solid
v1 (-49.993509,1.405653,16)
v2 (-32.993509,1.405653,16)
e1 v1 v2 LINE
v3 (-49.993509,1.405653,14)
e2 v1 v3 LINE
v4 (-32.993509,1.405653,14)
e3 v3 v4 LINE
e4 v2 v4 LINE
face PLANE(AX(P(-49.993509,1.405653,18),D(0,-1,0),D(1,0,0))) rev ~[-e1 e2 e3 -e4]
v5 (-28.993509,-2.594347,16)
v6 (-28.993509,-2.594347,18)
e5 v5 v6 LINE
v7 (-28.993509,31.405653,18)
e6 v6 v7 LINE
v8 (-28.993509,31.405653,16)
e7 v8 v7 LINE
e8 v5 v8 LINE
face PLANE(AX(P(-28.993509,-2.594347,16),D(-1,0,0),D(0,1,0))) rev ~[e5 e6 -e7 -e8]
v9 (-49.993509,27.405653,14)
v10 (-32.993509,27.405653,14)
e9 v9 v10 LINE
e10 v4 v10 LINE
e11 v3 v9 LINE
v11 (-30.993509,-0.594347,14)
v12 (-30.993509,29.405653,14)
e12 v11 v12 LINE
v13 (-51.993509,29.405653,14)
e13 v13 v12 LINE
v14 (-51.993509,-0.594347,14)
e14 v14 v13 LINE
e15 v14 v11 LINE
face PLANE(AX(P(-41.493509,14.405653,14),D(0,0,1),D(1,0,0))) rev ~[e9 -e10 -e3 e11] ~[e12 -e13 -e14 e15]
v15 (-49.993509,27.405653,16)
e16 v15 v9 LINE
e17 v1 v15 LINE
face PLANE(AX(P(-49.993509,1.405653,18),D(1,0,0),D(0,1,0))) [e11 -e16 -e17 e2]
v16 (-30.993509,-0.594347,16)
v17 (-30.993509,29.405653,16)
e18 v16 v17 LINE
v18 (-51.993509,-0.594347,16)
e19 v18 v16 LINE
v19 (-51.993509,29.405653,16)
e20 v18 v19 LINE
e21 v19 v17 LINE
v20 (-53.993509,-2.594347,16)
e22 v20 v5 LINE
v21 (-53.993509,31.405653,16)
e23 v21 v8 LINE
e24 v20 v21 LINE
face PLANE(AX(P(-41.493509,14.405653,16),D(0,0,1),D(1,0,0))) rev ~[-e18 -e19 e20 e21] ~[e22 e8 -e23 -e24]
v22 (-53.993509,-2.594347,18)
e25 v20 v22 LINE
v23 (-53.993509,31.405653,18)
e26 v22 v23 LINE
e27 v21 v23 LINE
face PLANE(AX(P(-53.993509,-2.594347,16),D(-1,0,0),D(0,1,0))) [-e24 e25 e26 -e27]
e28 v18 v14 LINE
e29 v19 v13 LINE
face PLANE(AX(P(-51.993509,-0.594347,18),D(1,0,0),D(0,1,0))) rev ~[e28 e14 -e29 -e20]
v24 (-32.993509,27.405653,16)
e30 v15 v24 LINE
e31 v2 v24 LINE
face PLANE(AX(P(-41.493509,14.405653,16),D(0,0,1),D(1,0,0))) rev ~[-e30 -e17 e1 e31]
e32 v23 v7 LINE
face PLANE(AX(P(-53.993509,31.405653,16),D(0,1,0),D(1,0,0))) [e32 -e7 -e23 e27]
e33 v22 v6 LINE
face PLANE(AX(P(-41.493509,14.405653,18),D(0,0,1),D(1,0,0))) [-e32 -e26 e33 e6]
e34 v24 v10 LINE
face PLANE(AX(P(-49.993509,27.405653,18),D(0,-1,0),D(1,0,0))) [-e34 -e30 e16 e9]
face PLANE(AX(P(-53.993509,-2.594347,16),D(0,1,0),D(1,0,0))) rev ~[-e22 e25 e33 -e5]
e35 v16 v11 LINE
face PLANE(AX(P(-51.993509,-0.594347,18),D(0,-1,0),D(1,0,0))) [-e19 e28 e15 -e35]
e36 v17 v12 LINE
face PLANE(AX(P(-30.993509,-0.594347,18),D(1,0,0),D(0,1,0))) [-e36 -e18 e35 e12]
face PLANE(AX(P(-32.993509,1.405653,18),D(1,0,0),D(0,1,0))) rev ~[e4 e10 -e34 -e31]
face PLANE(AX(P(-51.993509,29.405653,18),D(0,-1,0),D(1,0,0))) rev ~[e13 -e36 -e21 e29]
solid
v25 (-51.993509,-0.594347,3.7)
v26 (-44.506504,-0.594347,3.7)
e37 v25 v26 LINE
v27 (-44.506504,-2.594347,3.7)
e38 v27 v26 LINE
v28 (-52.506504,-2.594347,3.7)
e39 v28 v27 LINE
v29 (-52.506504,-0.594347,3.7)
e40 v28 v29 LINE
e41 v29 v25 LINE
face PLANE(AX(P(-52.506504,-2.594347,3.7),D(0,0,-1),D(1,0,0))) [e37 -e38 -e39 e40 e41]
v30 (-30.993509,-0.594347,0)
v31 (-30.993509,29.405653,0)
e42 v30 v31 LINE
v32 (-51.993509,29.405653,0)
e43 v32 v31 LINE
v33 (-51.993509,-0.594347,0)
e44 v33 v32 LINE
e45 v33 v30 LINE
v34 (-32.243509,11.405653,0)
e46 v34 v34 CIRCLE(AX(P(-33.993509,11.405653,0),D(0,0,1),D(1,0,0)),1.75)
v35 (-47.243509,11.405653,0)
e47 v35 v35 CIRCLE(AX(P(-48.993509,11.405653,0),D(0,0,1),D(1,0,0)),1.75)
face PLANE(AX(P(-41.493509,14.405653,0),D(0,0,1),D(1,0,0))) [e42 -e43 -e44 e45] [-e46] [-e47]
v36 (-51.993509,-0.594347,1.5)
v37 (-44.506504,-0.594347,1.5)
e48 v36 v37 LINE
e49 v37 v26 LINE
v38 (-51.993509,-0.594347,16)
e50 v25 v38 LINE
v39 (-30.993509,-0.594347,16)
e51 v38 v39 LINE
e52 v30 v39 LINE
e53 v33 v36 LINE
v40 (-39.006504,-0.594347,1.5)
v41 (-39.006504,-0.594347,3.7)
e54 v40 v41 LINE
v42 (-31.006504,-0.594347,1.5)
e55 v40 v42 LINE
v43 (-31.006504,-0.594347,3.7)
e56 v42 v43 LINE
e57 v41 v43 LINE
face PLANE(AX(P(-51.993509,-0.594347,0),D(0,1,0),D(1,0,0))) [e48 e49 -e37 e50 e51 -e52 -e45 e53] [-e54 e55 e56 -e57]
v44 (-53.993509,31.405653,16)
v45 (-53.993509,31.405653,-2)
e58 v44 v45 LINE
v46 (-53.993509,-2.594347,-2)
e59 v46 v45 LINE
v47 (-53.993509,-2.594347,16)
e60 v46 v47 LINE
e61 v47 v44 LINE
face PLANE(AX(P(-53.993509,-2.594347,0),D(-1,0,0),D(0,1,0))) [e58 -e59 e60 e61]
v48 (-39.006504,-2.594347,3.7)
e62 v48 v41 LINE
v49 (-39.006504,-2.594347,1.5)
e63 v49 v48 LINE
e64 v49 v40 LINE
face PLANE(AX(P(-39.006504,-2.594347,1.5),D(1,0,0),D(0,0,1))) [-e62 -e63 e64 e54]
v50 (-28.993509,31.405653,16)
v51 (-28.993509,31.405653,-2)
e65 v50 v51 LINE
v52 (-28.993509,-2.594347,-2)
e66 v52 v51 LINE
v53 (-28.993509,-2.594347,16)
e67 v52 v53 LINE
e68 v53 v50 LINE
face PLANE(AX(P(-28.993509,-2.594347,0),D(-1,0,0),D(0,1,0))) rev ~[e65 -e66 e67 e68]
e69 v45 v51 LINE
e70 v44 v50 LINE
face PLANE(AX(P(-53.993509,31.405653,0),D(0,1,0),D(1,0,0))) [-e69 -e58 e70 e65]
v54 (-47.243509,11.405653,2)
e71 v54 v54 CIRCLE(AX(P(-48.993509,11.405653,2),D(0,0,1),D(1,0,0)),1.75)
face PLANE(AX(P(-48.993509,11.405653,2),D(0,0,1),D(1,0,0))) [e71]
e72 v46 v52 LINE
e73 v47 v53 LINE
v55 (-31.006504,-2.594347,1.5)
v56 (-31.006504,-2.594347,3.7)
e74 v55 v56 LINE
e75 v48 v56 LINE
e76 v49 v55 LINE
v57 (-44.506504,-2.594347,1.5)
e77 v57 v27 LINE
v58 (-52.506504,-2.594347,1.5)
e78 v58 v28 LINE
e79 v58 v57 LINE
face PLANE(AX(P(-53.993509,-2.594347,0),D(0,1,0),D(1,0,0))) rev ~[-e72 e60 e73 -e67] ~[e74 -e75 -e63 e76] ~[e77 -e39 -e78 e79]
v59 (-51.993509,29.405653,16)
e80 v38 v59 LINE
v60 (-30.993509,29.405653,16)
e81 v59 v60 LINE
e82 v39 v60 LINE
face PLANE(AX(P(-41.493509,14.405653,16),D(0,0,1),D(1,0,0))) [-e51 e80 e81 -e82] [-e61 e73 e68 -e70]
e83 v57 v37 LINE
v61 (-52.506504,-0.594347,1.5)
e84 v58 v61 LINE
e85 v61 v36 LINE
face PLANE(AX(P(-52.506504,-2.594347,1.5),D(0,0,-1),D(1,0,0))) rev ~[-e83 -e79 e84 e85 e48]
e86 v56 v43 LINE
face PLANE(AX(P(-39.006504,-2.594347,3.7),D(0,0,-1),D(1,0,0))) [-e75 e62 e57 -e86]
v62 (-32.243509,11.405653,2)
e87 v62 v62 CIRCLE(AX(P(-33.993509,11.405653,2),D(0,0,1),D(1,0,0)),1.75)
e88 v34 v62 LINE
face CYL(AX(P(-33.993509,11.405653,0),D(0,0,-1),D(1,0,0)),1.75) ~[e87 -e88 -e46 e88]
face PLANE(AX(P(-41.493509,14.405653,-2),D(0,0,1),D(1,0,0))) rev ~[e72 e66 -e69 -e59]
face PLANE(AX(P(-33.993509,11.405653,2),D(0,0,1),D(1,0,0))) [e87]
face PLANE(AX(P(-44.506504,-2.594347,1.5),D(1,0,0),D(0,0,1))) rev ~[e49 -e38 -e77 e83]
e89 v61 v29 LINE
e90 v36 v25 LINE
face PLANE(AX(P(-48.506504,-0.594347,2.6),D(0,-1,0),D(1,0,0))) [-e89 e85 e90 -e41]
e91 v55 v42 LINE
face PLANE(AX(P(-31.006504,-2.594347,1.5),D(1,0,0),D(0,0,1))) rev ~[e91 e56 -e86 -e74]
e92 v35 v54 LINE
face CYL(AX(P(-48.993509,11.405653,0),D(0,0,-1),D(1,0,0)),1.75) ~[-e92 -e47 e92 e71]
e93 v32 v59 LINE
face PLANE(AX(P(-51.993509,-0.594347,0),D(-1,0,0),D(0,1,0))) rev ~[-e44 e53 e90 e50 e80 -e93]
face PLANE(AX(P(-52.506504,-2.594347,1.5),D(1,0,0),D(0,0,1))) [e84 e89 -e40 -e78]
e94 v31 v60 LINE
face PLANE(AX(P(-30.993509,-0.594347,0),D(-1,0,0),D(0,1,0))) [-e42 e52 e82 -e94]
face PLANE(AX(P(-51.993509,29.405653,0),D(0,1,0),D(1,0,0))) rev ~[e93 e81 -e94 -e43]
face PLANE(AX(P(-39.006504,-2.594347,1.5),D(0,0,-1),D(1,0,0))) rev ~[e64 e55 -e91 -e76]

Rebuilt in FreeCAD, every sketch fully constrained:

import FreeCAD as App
import Part
import Sketcher
Q = App.Units.Quantity

doc = App.newDocument("Part")
params = doc.addObject("Spreadsheet::Sheet", "Params")
for row, (alias, value) in enumerate([
    ("sketch1_width", "25 mm"),
    ("sketch1_height", "34 mm"),
    ("pad1_length", "2 mm"),
    ("sketch2_width", "25 mm"),
    ("sketch2_width2", "21 mm"),
    ("sketch2_height", "34 mm"),
    ("sketch2_height2", "30 mm"),
    ("pad2_length", "16 mm"),
    ("sketch3_width", "8 mm"),
    ("sketch3_height", "2.2 mm"),
    ("pocket1_length", "2 mm"),
    ("sketch4_diameter", "3.5 mm"),
    ("pad3_length", "2 mm"),
    ("sketch5_width", "25 mm"),
    ("sketch5_height", "34 mm"),
    ("pad4_length", "2 mm"),
    ("sketch6_width", "21 mm"),
    ("sketch6_width2", "17 mm"),
    ("sketch6_height", "30 mm"),
    ("sketch6_height2", "26 mm"),
    ("pad5_length", "4 mm"),
], start=1):
    params.set(f"A{row}", alias)
    params.set(f"B{row}", "=" + value)
    params.setAlias(f"B{row}", alias)

body = doc.addObject("PartDesign::Body", "Body")

# Sketch on XY plane
sketch1 = doc.addObject("Sketcher::SketchObject", "Sketch")
body.addObject(sketch1)
sketch1.AttachmentSupport = (doc.XY_Plane, [""])
sketch1.MapMode = "FlatFace"
sketch1.addGeometry([
    Part.LineSegment(App.Vector(-53.993509, 31.405653, 0), App.Vector(-53.993509, -2.594347, 0)),
    Part.LineSegment(App.Vector(-53.993509, -2.594347, 0), App.Vector(-28.993509, -2.594347, 0)),
    Part.LineSegment(App.Vector(-28.993509, -2.594347, 0), App.Vector(-28.993509, 31.405653, 0)),
    Part.LineSegment(App.Vector(-28.993509, 31.405653, 0), App.Vector(-53.993509, 31.405653, 0)),
], False)
sketch1.addConstraint([
    Sketcher.Constraint("Coincident", 0, 2, 1, 1),
    Sketcher.Constraint("Coincident", 1, 2, 2, 1),
    Sketcher.Constraint("Coincident", 2, 2, 3, 1),
    Sketcher.Constraint("Coincident", 3, 2, 0, 1),
    Sketcher.Constraint("Vertical", 0),
    Sketcher.Constraint("Horizontal", 1),
    Sketcher.Constraint("Vertical", 2),
    Sketcher.Constraint("Horizontal", 3),
    Sketcher.Constraint("DistanceX", 1, 1, 1, 2, Q("25 mm")),
    Sketcher.Constraint("DistanceY", 0, 2, 0, 1, Q("34 mm")),
    Sketcher.Constraint("DistanceX", 0, 2, -1, 1, Q("53.993509 mm")),
    Sketcher.Constraint("DistanceY", 0, 2, -1, 1, Q("2.594347 mm")),
])
sketch1.setExpression("Constraints[8]", "Params.sketch1_width")
sketch1.setExpression("Constraints[9]", "Params.sketch1_height")
pad1 = doc.addObject("PartDesign::Pad", "Pad")
body.addObject(pad1)
pad1.Profile = sketch1
pad1.setExpression("Length", "Params.pad1_length")
pad1.Reversed = True

# Sketch on XY plane
sketch2 = doc.addObject("Sketcher::SketchObject", "Sketch001")
body.addObject(sketch2)
sketch2.AttachmentSupport = (doc.XY_Plane, [""])
sketch2.MapMode = "FlatFace"
sketch2.addGeometry([
    Part.LineSegment(App.Vector(-53.993509, 31.405653, 0), App.Vector(-53.993509, -2.594347, 0)),  # 0
    Part.LineSegment(App.Vector(-53.993509, -2.594347, 0), App.Vector(-28.993509, -2.594347, 0)),  # 1
    Part.LineSegment(App.Vector(-28.993509, -2.594347, 0), App.Vector(-28.993509, 31.405653, 0)),  # 2
    Part.LineSegment(App.Vector(-28.993509, 31.405653, 0), App.Vector(-53.993509, 31.405653, 0)),  # 3
    Part.LineSegment(App.Vector(-30.993509, -0.594347, 0), App.Vector(-51.993509, -0.594347, 0)),  # 4
    Part.LineSegment(App.Vector(-51.993509, -0.594347, 0), App.Vector(-51.993509, 29.405653, 0)),  # 5
    Part.LineSegment(App.Vector(-51.993509, 29.405653, 0), App.Vector(-30.993509, 29.405653, 0)),  # 6
    Part.LineSegment(App.Vector(-30.993509, 29.405653, 0), App.Vector(-30.993509, -0.594347, 0)),  # 7
], False)
sketch2.addConstraint([
    Sketcher.Constraint("Coincident", 0, 2, 1, 1),
    Sketcher.Constraint("Coincident", 1, 2, 2, 1),
    Sketcher.Constraint("Coincident", 2, 2, 3, 1),
    Sketcher.Constraint("Coincident", 3, 2, 0, 1),
    Sketcher.Constraint("Coincident", 4, 2, 5, 1),
    Sketcher.Constraint("Coincident", 5, 2, 6, 1),
    Sketcher.Constraint("Coincident", 6, 2, 7, 1),
    Sketcher.Constraint("Coincident", 7, 2, 4, 1),
    Sketcher.Constraint("Vertical", 0),
    Sketcher.Constraint("Horizontal", 1),
    Sketcher.Constraint("Vertical", 2),
    Sketcher.Constraint("Horizontal", 3),
    Sketcher.Constraint("Horizontal", 4),
    Sketcher.Constraint("Vertical", 5),
    Sketcher.Constraint("Horizontal", 6),
    Sketcher.Constraint("Vertical", 7),
    Sketcher.Constraint("DistanceX", 1, 1, 1, 2, Q("25 mm")),
    Sketcher.Constraint("DistanceX", 4, 2, 4, 1, Q("21 mm")),
    Sketcher.Constraint("DistanceY", 0, 2, 0, 1, Q("34 mm")),
    Sketcher.Constraint("DistanceY", 5, 1, 5, 2, Q("30 mm")),
    Sketcher.Constraint("DistanceX", 0, 2, 4, 2, Q("2 mm")),
    Sketcher.Constraint("DistanceY", 0, 2, 4, 2, Q("2 mm")),
    Sketcher.Constraint("DistanceX", 0, 2, -1, 1, Q("53.993509 mm")),
    Sketcher.Constraint("DistanceY", 0, 2, -1, 1, Q("2.594347 mm")),
])
sketch2.setExpression("Constraints[16]", "Params.sketch2_width")
sketch2.setExpression("Constraints[17]", "Params.sketch2_width2")
sketch2.setExpression("Constraints[18]", "Params.sketch2_height")
sketch2.setExpression("Constraints[19]", "Params.sketch2_height2")
pad2 = doc.addObject("PartDesign::Pad", "Pad001")
body.addObject(pad2)
pad2.Profile = sketch2
pad2.setExpression("Length", "Params.pad2_length")

# Sketch on XZ plane
sketch3 = doc.addObject("Sketcher::SketchObject", "Sketch002")
body.addObject(sketch3)
sketch3.AttachmentSupport = (doc.XZ_Plane, [""])
sketch3.MapMode = "FlatFace"
sketch3.AttachmentOffset = App.Placement(App.Vector(0, 0, 2.594347), App.Rotation())
sketch3.addGeometry([
    Part.LineSegment(App.Vector(-52.506504, 3.7, 0), App.Vector(-52.506504, 1.5, 0)),  # 0
    Part.LineSegment(App.Vector(-52.506504, 1.5, 0), App.Vector(-44.506504, 1.5, 0)),  # 1
    Part.LineSegment(App.Vector(-44.506504, 1.5, 0), App.Vector(-44.506504, 3.7, 0)),  # 2
    Part.LineSegment(App.Vector(-44.506504, 3.7, 0), App.Vector(-52.506504, 3.7, 0)),  # 3
    Part.LineSegment(App.Vector(-39.006504, 3.7, 0), App.Vector(-39.006504, 1.5, 0)),  # 4
    Part.LineSegment(App.Vector(-39.006504, 1.5, 0), App.Vector(-31.006504, 1.5, 0)),  # 5
    Part.LineSegment(App.Vector(-31.006504, 1.5, 0), App.Vector(-31.006504, 3.7, 0)),  # 6
    Part.LineSegment(App.Vector(-31.006504, 3.7, 0), App.Vector(-39.006504, 3.7, 0)),  # 7
], False)
sketch3.addConstraint([
    Sketcher.Constraint("Coincident", 0, 2, 1, 1),
    Sketcher.Constraint("Coincident", 1, 2, 2, 1),
    Sketcher.Constraint("Coincident", 2, 2, 3, 1),
    Sketcher.Constraint("Coincident", 3, 2, 0, 1),
    Sketcher.Constraint("Coincident", 4, 2, 5, 1),
    Sketcher.Constraint("Coincident", 5, 2, 6, 1),
    Sketcher.Constraint("Coincident", 6, 2, 7, 1),
    Sketcher.Constraint("Coincident", 7, 2, 4, 1),
    Sketcher.Constraint("Vertical", 0),
    Sketcher.Constraint("Horizontal", 1),
    Sketcher.Constraint("Vertical", 2),
    Sketcher.Constraint("Horizontal", 3),
    Sketcher.Constraint("Vertical", 4),
    Sketcher.Constraint("Horizontal", 5),
    Sketcher.Constraint("Vertical", 6),
    Sketcher.Constraint("Horizontal", 7),
    Sketcher.Constraint("Horizontal", 1, 2, 4, 2),
    Sketcher.Constraint("Horizontal", 3, 2, 6, 2),
    Sketcher.Constraint("Equal", 3, 5),
    Sketcher.Constraint("DistanceX", 1, 1, 1, 2, Q("8 mm")),
    Sketcher.Constraint("DistanceY", 0, 2, 0, 1, Q("2.2 mm")),
    Sketcher.Constraint("DistanceY", -1, 1, 0, 2, Q("1.5 mm")),
    Sketcher.Constraint("DistanceX", 1, 2, 4, 2, Q("5.5 mm")),
    Sketcher.Constraint("DistanceX", 0, 2, -1, 1, Q("52.506504 mm")),
])
sketch3.setExpression("Constraints[19]", "Params.sketch3_width")
sketch3.setExpression("Constraints[20]", "Params.sketch3_height")
pocket1 = doc.addObject("PartDesign::Pocket", "Pocket")
body.addObject(pocket1)
pocket1.Profile = sketch3
pocket1.setExpression("Length", "Params.pocket1_length")

# Sketch on XY plane
sketch4 = doc.addObject("Sketcher::SketchObject", "Sketch003")
body.addObject(sketch4)
sketch4.AttachmentSupport = (doc.XY_Plane, [""])
sketch4.MapMode = "FlatFace"
sketch4.addGeometry([
    Part.Circle(App.Vector(-48.993509, 11.405653, 0), App.Vector(0, 0, 1), 1.75),
    Part.Circle(App.Vector(-33.993509, 11.405653, 0), App.Vector(0, 0, 1), 1.75),
], False)
sketch4.addConstraint([
    Sketcher.Constraint("Equal", 0, 1),
    Sketcher.Constraint("Horizontal", 0, 3, 1, 3),
    Sketcher.Constraint("Diameter", 0, Q("3.5 mm")),
    Sketcher.Constraint("DistanceX", 0, 3, 1, 3, Q("15 mm")),
    Sketcher.Constraint("DistanceX", 0, 3, -1, 1, Q("48.993509 mm")),
    Sketcher.Constraint("DistanceY", -1, 1, 0, 3, Q("11.405653 mm")),
])
sketch4.setExpression("Constraints[2]", "Params.sketch4_diameter")
pad3 = doc.addObject("PartDesign::Pad", "Pad002")
body.addObject(pad3)
pad3.Profile = sketch4
pad3.setExpression("Length", "Params.pad3_length")
body2 = doc.addObject("PartDesign::Body", "Body001")

# Sketch on XY plane
sketch5 = doc.addObject("Sketcher::SketchObject", "Sketch004")
body2.addObject(sketch5)
sketch5.AttachmentSupport = (doc.getObject("XY_Plane001"), [""])
sketch5.MapMode = "FlatFace"
sketch5.AttachmentOffset = App.Placement(App.Vector(0, 0, 16), App.Rotation())
sketch5.addGeometry([
    Part.LineSegment(App.Vector(-53.993509, 31.405653, 0), App.Vector(-53.993509, -2.594347, 0)),
    Part.LineSegment(App.Vector(-53.993509, -2.594347, 0), App.Vector(-28.993509, -2.594347, 0)),
    Part.LineSegment(App.Vector(-28.993509, -2.594347, 0), App.Vector(-28.993509, 31.405653, 0)),
    Part.LineSegment(App.Vector(-28.993509, 31.405653, 0), App.Vector(-53.993509, 31.405653, 0)),
], False)
sketch5.addConstraint([
    Sketcher.Constraint("Coincident", 0, 2, 1, 1),
    Sketcher.Constraint("Coincident", 1, 2, 2, 1),
    Sketcher.Constraint("Coincident", 2, 2, 3, 1),
    Sketcher.Constraint("Coincident", 3, 2, 0, 1),
    Sketcher.Constraint("Vertical", 0),
    Sketcher.Constraint("Horizontal", 1),
    Sketcher.Constraint("Vertical", 2),
    Sketcher.Constraint("Horizontal", 3),
    Sketcher.Constraint("DistanceX", 1, 1, 1, 2, Q("25 mm")),
    Sketcher.Constraint("DistanceY", 0, 2, 0, 1, Q("34 mm")),
    Sketcher.Constraint("DistanceX", 0, 2, -1, 1, Q("53.993509 mm")),
    Sketcher.Constraint("DistanceY", 0, 2, -1, 1, Q("2.594347 mm")),
])
sketch5.setExpression("Constraints[8]", "Params.sketch5_width")
sketch5.setExpression("Constraints[9]", "Params.sketch5_height")
pad4 = doc.addObject("PartDesign::Pad", "Pad003")
body2.addObject(pad4)
pad4.Profile = sketch5
pad4.setExpression("Length", "Params.pad4_length")

# Sketch on XY plane
sketch6 = doc.addObject("Sketcher::SketchObject", "Sketch005")
body2.addObject(sketch6)
sketch6.AttachmentSupport = (doc.getObject("XY_Plane001"), [""])
sketch6.MapMode = "FlatFace"
sketch6.AttachmentOffset = App.Placement(App.Vector(0, 0, 18), App.Rotation())
sketch6.addGeometry([
    Part.LineSegment(App.Vector(-51.993509, 29.405653, 0), App.Vector(-51.993509, -0.594347, 0)),  # 0
    Part.LineSegment(App.Vector(-51.993509, -0.594347, 0), App.Vector(-30.993509, -0.594347, 0)),  # 1
    Part.LineSegment(App.Vector(-30.993509, -0.594347, 0), App.Vector(-30.993509, 29.405653, 0)),  # 2
    Part.LineSegment(App.Vector(-30.993509, 29.405653, 0), App.Vector(-51.993509, 29.405653, 0)),  # 3
    Part.LineSegment(App.Vector(-32.993509, 1.405653, 0), App.Vector(-49.993509, 1.405653, 0)),  # 4
    Part.LineSegment(App.Vector(-49.993509, 1.405653, 0), App.Vector(-49.993509, 27.405653, 0)),  # 5
    Part.LineSegment(App.Vector(-49.993509, 27.405653, 0), App.Vector(-32.993509, 27.405653, 0)),  # 6
    Part.LineSegment(App.Vector(-32.993509, 27.405653, 0), App.Vector(-32.993509, 1.405653, 0)),  # 7
], False)
sketch6.addConstraint([
    Sketcher.Constraint("Coincident", 0, 2, 1, 1),
    Sketcher.Constraint("Coincident", 1, 2, 2, 1),
    Sketcher.Constraint("Coincident", 2, 2, 3, 1),
    Sketcher.Constraint("Coincident", 3, 2, 0, 1),
    Sketcher.Constraint("Coincident", 4, 2, 5, 1),
    Sketcher.Constraint("Coincident", 5, 2, 6, 1),
    Sketcher.Constraint("Coincident", 6, 2, 7, 1),
    Sketcher.Constraint("Coincident", 7, 2, 4, 1),
    Sketcher.Constraint("Vertical", 0),
    Sketcher.Constraint("Horizontal", 1),
    Sketcher.Constraint("Vertical", 2),
    Sketcher.Constraint("Horizontal", 3),
    Sketcher.Constraint("Horizontal", 4),
    Sketcher.Constraint("Vertical", 5),
    Sketcher.Constraint("Horizontal", 6),
    Sketcher.Constraint("Vertical", 7),
    Sketcher.Constraint("DistanceX", 1, 1, 1, 2, Q("21 mm")),
    Sketcher.Constraint("DistanceX", 4, 2, 4, 1, Q("17 mm")),
    Sketcher.Constraint("DistanceY", 0, 2, 0, 1, Q("30 mm")),
    Sketcher.Constraint("DistanceY", 5, 1, 5, 2, Q("26 mm")),
    Sketcher.Constraint("DistanceX", 0, 2, 4, 2, Q("2 mm")),
    Sketcher.Constraint("DistanceY", 0, 2, 4, 2, Q("2 mm")),
    Sketcher.Constraint("DistanceX", 0, 2, -1, 1, Q("51.993509 mm")),
    Sketcher.Constraint("DistanceY", 0, 2, -1, 1, Q("0.594347 mm")),
])
sketch6.setExpression("Constraints[16]", "Params.sketch6_width")
sketch6.setExpression("Constraints[17]", "Params.sketch6_width2")
sketch6.setExpression("Constraints[18]", "Params.sketch6_height")
sketch6.setExpression("Constraints[19]", "Params.sketch6_height2")
pad5 = doc.addObject("PartDesign::Pad", "Pad004")
body2.addObject(pad5)
pad5.Profile = sketch6
pad5.setExpression("Length", "Params.pad5_length")
pad5.Reversed = True

doc.recompute()
